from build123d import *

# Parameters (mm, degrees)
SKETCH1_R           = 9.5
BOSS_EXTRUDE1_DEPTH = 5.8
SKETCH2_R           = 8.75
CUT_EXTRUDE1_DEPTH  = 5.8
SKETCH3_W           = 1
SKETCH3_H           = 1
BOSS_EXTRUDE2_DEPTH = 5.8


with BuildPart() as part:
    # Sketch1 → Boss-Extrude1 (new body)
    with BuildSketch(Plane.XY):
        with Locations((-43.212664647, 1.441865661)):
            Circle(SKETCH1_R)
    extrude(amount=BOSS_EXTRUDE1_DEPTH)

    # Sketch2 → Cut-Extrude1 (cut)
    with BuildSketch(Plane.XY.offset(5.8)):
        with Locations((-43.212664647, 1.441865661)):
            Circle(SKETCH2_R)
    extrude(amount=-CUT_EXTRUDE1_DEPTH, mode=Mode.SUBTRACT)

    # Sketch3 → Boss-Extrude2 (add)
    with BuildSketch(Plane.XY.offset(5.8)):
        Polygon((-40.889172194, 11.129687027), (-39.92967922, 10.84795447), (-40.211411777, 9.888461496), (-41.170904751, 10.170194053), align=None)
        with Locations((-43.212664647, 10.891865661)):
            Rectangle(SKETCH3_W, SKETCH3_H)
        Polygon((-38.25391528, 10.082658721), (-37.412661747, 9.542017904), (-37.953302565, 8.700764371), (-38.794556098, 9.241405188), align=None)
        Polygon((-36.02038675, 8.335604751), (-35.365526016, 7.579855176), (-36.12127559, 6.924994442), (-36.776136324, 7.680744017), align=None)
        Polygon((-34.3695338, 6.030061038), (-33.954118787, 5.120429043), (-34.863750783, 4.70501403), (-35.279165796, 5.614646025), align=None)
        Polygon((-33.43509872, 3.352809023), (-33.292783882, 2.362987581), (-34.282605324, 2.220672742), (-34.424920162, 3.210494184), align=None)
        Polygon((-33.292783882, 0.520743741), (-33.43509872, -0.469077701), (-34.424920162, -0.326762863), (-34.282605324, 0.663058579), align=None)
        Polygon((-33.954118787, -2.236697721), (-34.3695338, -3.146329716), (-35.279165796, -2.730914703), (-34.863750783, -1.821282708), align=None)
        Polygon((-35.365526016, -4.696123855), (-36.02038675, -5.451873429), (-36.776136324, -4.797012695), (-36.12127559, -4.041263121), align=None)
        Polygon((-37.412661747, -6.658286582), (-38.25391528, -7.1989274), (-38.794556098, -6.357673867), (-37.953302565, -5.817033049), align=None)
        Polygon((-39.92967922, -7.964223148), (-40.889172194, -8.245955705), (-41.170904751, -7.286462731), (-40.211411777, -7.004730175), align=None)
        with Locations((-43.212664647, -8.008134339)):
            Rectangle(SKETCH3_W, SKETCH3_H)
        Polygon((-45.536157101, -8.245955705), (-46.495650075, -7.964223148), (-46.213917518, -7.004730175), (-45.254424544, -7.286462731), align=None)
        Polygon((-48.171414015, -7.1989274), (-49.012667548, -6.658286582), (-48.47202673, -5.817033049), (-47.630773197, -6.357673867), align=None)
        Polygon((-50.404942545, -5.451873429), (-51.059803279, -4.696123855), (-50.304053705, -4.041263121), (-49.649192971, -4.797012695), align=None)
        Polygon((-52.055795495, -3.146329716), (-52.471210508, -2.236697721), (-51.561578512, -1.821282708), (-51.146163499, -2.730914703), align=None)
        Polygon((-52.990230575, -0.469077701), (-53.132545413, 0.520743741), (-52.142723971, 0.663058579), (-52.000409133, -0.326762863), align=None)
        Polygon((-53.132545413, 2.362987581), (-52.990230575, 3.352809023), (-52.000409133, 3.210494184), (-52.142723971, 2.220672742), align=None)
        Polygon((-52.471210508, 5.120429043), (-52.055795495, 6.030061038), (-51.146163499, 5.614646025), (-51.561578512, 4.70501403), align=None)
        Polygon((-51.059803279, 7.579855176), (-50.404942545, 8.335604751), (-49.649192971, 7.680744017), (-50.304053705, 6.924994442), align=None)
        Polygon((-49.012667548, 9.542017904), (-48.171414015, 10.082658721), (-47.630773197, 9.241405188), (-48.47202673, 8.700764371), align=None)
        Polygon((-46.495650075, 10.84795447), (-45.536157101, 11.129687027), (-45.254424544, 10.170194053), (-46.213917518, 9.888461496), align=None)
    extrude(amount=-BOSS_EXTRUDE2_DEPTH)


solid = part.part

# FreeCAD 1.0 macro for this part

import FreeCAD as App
import Part
import Sketcher
Q = App.Units.Quantity


def add_polygon(sketch, points):
    """Adds a closed chain of lines whose ends are joined by coincident constraints."""
    first, n = sketch.GeometryCount, len(points)
    for a, b in zip(points, points[1:] + points[:1]):
        sketch.addGeometry(Part.LineSegment(App.Vector(*a, 0), App.Vector(*b, 0)), False)
    for i in range(n):
        sketch.addConstraint(Sketcher.Constraint("Coincident", first + i, 2, first + (i + 1) % n, 1))

doc = App.newDocument("Part")
body = doc.addObject("PartDesign::Body", "Body")

# Sketch on XY plane
sketch1 = body.newObject("Sketcher::SketchObject", "Sketch")
sketch1.AttachmentSupport = (doc.getObject("XY_Plane"), [""])
sketch1.MapMode = "FlatFace"
sketch1.addGeometry(Part.Circle(App.Vector(-43.212665, 1.441866, 0), App.Vector(0, 0, 1), 9.5), False)
sketch1.addConstraint([
    Sketcher.Constraint("Diameter", 0, Q("19 mm")),
    Sketcher.Constraint("DistanceX", 0, 3, -1, 1, Q("43.212665 mm")),
    Sketcher.Constraint("DistanceY", -1, 1, 0, 3, Q("1.441866 mm")),
])
pad1 = body.newObject("PartDesign::Pad", "Pad")
pad1.Profile = sketch1
pad1.Length = 5.8

# Sketch on XY plane
sketch2 = body.newObject("Sketcher::SketchObject", "Sketch001")
sketch2.AttachmentSupport = (doc.getObject("XY_Plane"), [""])
sketch2.MapMode = "FlatFace"
sketch2.AttachmentOffset = App.Placement(App.Vector(0, 0, 5.8), App.Rotation())
sketch2.addGeometry(Part.Circle(App.Vector(-43.212665, 1.441866, 0), App.Vector(0, 0, 1), 8.75), False)
sketch2.addConstraint([
    Sketcher.Constraint("Diameter", 0, Q("17.5 mm")),
    Sketcher.Constraint("DistanceX", 0, 3, -1, 1, Q("43.212665 mm")),
    Sketcher.Constraint("DistanceY", -1, 1, 0, 3, Q("1.441866 mm")),
])
pocket1 = body.newObject("PartDesign::Pocket", "Pocket")
pocket1.Profile = sketch2
pocket1.Length = 5.8

# Sketch on XY plane
sketch3 = body.newObject("Sketcher::SketchObject", "Sketch002")
sketch3.AttachmentSupport = (doc.getObject("XY_Plane"), [""])
sketch3.MapMode = "FlatFace"
sketch3.AttachmentOffset = App.Placement(App.Vector(0, 0, 5.8), App.Rotation())
add_polygon(sketch3, [(-39.929679, 10.847954), (-40.889172, 11.129687), (-41.170905, 10.170194), (-40.211412, 9.888461)])  # lines 0-3
add_polygon(sketch3, [(-43.712665, 11.391866), (-43.712665, 10.391866), (-42.712665, 10.391866), (-42.712665, 11.391866)])  # lines 4-7
add_polygon(sketch3, [(-37.412662, 9.542018), (-38.253915, 10.082659), (-38.794556, 9.241405), (-37.953303, 8.700764)])  # lines 8-11
add_polygon(sketch3, [(-35.365526, 7.579855), (-36.020387, 8.335605), (-36.776136, 7.680744), (-36.121276, 6.924994)])  # lines 12-15
add_polygon(sketch3, [(-33.954119, 5.120429), (-34.369534, 6.030061), (-35.279166, 5.614646), (-34.863751, 4.705014)])  # lines 16-19
add_polygon(sketch3, [(-33.292784, 2.362988), (-33.435099, 3.352809), (-34.42492, 3.210494), (-34.282605, 2.220673)])  # lines 20-23
add_polygon(sketch3, [(-33.435099, -0.469078), (-33.292784, 0.520744), (-34.282605, 0.663059), (-34.42492, -0.326763)])  # lines 24-27
add_polygon(sketch3, [(-34.369534, -3.14633), (-33.954119, -2.236698), (-34.863751, -1.821283), (-35.279166, -2.730915)])  # lines 28-31
add_polygon(sketch3, [(-36.020387, -5.451873), (-35.365526, -4.696124), (-36.121276, -4.041263), (-36.776136, -4.797013)])  # lines 32-35
add_polygon(sketch3, [(-38.253915, -7.198927), (-37.412662, -6.658287), (-37.953303, -5.817033), (-38.794556, -6.357674)])  # lines 36-39
add_polygon(sketch3, [(-40.889172, -8.245956), (-39.929679, -7.964223), (-40.211412, -7.00473), (-41.170905, -7.286463)])  # lines 40-43
add_polygon(sketch3, [(-43.712665, -7.508134), (-43.712665, -8.508134), (-42.712665, -8.508134), (-42.712665, -7.508134)])  # lines 44-47
add_polygon(sketch3, [(-46.49565, -7.964223), (-45.536157, -8.245956), (-45.254425, -7.286463), (-46.213918, -7.00473)])  # lines 48-51
add_polygon(sketch3, [(-49.012668, -6.658287), (-48.171414, -7.198927), (-47.630773, -6.357674), (-48.472027, -5.817033)])  # lines 52-55
add_polygon(sketch3, [(-51.059803, -4.696124), (-50.404943, -5.451873), (-49.649193, -4.797013), (-50.304054, -4.041263)])  # lines 56-59
add_polygon(sketch3, [(-52.471211, -2.236698), (-52.055795, -3.14633), (-51.146163, -2.730915), (-51.561579, -1.821283)])  # lines 60-63
add_polygon(sketch3, [(-53.132545, 0.520744), (-52.990231, -0.469078), (-52.000409, -0.326763), (-52.142724, 0.663059)])  # lines 64-67
add_polygon(sketch3, [(-52.990231, 3.352809), (-53.132545, 2.362988), (-52.142724, 2.220673), (-52.000409, 3.210494)])  # lines 68-71
add_polygon(sketch3, [(-52.055795, 6.030061), (-52.471211, 5.120429), (-51.561579, 4.705014), (-51.146163, 5.614646)])  # lines 72-75
add_polygon(sketch3, [(-50.404943, 8.335605), (-51.059803, 7.579855), (-50.304054, 6.924994), (-49.649193, 7.680744)])  # lines 76-79
add_polygon(sketch3, [(-48.171414, 10.082659), (-49.012668, 9.542018), (-48.472027, 8.700764), (-47.630773, 9.241405)])  # lines 80-83
add_polygon(sketch3, [(-45.536157, 11.129687), (-46.49565, 10.847954), (-46.213918, 9.888461), (-45.254425, 10.170194)])  # lines 84-87
sketch3.addConstraint([
    Sketcher.Constraint("Vertical", 4),
    Sketcher.Constraint("Horizontal", 5),
    Sketcher.Constraint("Vertical", 6),
    Sketcher.Constraint("Horizontal", 7),
    Sketcher.Constraint("Vertical", 44),
    Sketcher.Constraint("Horizontal", 45),
    Sketcher.Constraint("Vertical", 46),
    Sketcher.Constraint("Horizontal", 47),
    Sketcher.Constraint("Perpendicular", 0, 1),
    Sketcher.Constraint("Perpendicular", 1, 2),
    Sketcher.Constraint("Perpendicular", 2, 3),
    Sketcher.Constraint("Perpendicular", 8, 9),
    Sketcher.Constraint("Perpendicular", 9, 10),
    Sketcher.Constraint("Perpendicular", 10, 11),
    Sketcher.Constraint("Perpendicular", 12, 13),
    Sketcher.Constraint("Perpendicular", 13, 14),
    Sketcher.Constraint("Perpendicular", 14, 15),
    Sketcher.Constraint("Perpendicular", 16, 17),
    Sketcher.Constraint("Perpendicular", 17, 18),
    Sketcher.Constraint("Perpendicular", 18, 19),
    Sketcher.Constraint("Perpendicular", 20, 21),
    Sketcher.Constraint("Perpendicular", 21, 22),
    Sketcher.Constraint("Perpendicular", 22, 23),
    Sketcher.Constraint("Perpendicular", 24, 25),
    Sketcher.Constraint("Perpendicular", 25, 26),
    Sketcher.Constraint("Perpendicular", 26, 27),
    Sketcher.Constraint("Perpendicular", 28, 29),
    Sketcher.Constraint("Perpendicular", 29, 30),
    Sketcher.Constraint("Perpendicular", 30, 31),
    Sketcher.Constraint("Perpendicular", 32, 33),
    Sketcher.Constraint("Perpendicular", 33, 34),
    Sketcher.Constraint("Perpendicular", 34, 35),
    Sketcher.Constraint("Perpendicular", 36, 37),
    Sketcher.Constraint("Perpendicular", 37, 38),
    Sketcher.Constraint("Perpendicular", 38, 39),
    Sketcher.Constraint("Perpendicular", 40, 41),
    Sketcher.Constraint("Perpendicular", 41, 42),
    Sketcher.Constraint("Perpendicular", 42, 43),
    Sketcher.Constraint("Perpendicular", 3, 48),
    Sketcher.Constraint("Perpendicular", 48, 49),
    Sketcher.Constraint("Perpendicular", 49, 50),
    Sketcher.Constraint("Perpendicular", 50, 51),
    Sketcher.Constraint("Perpendicular", 11, 52),
    Sketcher.Constraint("Perpendicular", 52, 53),
    Sketcher.Constraint("Perpendicular", 53, 54),
    Sketcher.Constraint("Perpendicular", 54, 55),
    Sketcher.Constraint("Perpendicular", 15, 56),
    Sketcher.Constraint("Perpendicular", 56, 57),
    Sketcher.Constraint("Perpendicular", 57, 58),
    Sketcher.Constraint("Perpendicular", 58, 59),
    Sketcher.Constraint("Perpendicular", 19, 60),
    Sketcher.Constraint("Perpendicular", 60, 61),
    Sketcher.Constraint("Perpendicular", 61, 62),
    Sketcher.Constraint("Perpendicular", 62, 63),
    Sketcher.Constraint("Perpendicular", 23, 64),
    Sketcher.Constraint("Perpendicular", 64, 65),
    Sketcher.Constraint("Perpendicular", 65, 66),
    Sketcher.Constraint("Perpendicular", 66, 67),
    Sketcher.Constraint("Perpendicular", 27, 68),
    Sketcher.Constraint("Perpendicular", 68, 69),
    Sketcher.Constraint("Perpendicular", 69, 70),
    Sketcher.Constraint("Perpendicular", 70, 71),
    Sketcher.Constraint("Perpendicular", 31, 72),
    Sketcher.Constraint("Perpendicular", 72, 73),
    Sketcher.Constraint("Perpendicular", 73, 74),
    Sketcher.Constraint("Perpendicular", 74, 75),
    Sketcher.Constraint("Perpendicular", 35, 76),
    Sketcher.Constraint("Perpendicular", 76, 77),
    Sketcher.Constraint("Perpendicular", 77, 78),
    Sketcher.Constraint("Perpendicular", 78, 79),
    Sketcher.Constraint("Perpendicular", 39, 80),
    Sketcher.Constraint("Perpendicular", 80, 81),
    Sketcher.Constraint("Perpendicular", 81, 82),
    Sketcher.Constraint("Perpendicular", 82, 83),
    Sketcher.Constraint("Perpendicular", 43, 84),
    Sketcher.Constraint("Perpendicular", 84, 85),
    Sketcher.Constraint("Perpendicular", 85, 86),
    Sketcher.Constraint("Perpendicular", 86, 87),
    Sketcher.Constraint("Horizontal", 43, 2, 48, 2),
    Sketcher.Constraint("Horizontal", 42, 2, 49, 2),
    Sketcher.Constraint("Horizontal", 41, 2, 50, 2),
    Sketcher.Constraint("Horizontal", 39, 2, 52, 2),
    Sketcher.Constraint("Horizontal", 38, 2, 53, 2),
    Sketcher.Constraint("Horizontal", 37, 2, 54, 2),
    Sketcher.Constraint("Horizontal", 35, 2, 56, 2),
    Sketcher.Constraint("Horizontal", 34, 2, 57, 2),
    Sketcher.Constraint("Horizontal", 33, 2, 58, 2),
    Sketcher.Constraint("Horizontal", 31, 2, 60, 2),
    Sketcher.Constraint("Horizontal", 30, 2, 61, 2),
    Sketcher.Constraint("Horizontal", 29, 2, 62, 2),
    Sketcher.Constraint("Horizontal", 27, 2, 64, 2),
    Sketcher.Constraint("Horizontal", 26, 2, 65, 2),
    Sketcher.Constraint("Horizontal", 25, 2, 66, 2),
    Sketcher.Constraint("Horizontal", 23, 2, 68, 2),
    Sketcher.Constraint("Horizontal", 22, 2, 69, 2),
    Sketcher.Constraint("Horizontal", 21, 2, 70, 2),
    Sketcher.Constraint("Horizontal", 19, 2, 72, 2),
    Sketcher.Constraint("Horizontal", 18, 2, 73, 2),
    Sketcher.Constraint("Horizontal", 17, 2, 74, 2),
    Sketcher.Constraint("Horizontal", 15, 2, 76, 2),
    Sketcher.Constraint("Horizontal", 14, 2, 77, 2),
    Sketcher.Constraint("Horizontal", 13, 2, 78, 2),
    Sketcher.Constraint("Horizontal", 11, 2, 80, 2),
    Sketcher.Constraint("Horizontal", 10, 2, 81, 2),
    Sketcher.Constraint("Horizontal", 9, 2, 82, 2),
    Sketcher.Constraint("Horizontal", 3, 2, 84, 2),
    Sketcher.Constraint("Horizontal", 2, 2, 85, 2),
    Sketcher.Constraint("Horizontal", 1, 2, 86, 2),
    Sketcher.Constraint("Vertical", 23, 2, 24, 2),
    Sketcher.Constraint("Vertical", 22, 2, 25, 2),
    Sketcher.Constraint("Vertical", 21, 2, 26, 2),
    Sketcher.Constraint("Vertical", 19, 2, 28, 2),
    Sketcher.Constraint("Vertical", 18, 2, 29, 2),
    Sketcher.Constraint("Vertical", 17, 2, 30, 2),
    Sketcher.Constraint("Vertical", 15, 2, 32, 2),
    Sketcher.Constraint("Vertical", 14, 2, 33, 2),
    Sketcher.Constraint("Vertical", 13, 2, 34, 2),
    Sketcher.Constraint("Vertical", 11, 2, 36, 2),
    Sketcher.Constraint("Vertical", 10, 2, 37, 2),
    Sketcher.Constraint("Vertical", 9, 2, 38, 2),
    Sketcher.Constraint("Vertical", 3, 2, 40, 2),
    Sketcher.Constraint("Vertical", 2, 2, 41, 2),
    Sketcher.Constraint("Vertical", 1, 2, 42, 2),
    Sketcher.Constraint("Vertical", 7, 2, 44, 2),
    Sketcher.Constraint("Vertical", 6, 2, 45, 2),
    Sketcher.Constraint("Vertical", 67, 2, 68, 2),
    Sketcher.Constraint("Vertical", 66, 2, 69, 2),
    Sketcher.Constraint("Vertical", 63, 2, 72, 2),
    Sketcher.Constraint("Vertical", 62, 2, 73, 2),
    Sketcher.Constraint("Vertical", 59, 2, 76, 2),
    Sketcher.Constraint("Vertical", 58, 2, 77, 2),
    Sketcher.Constraint("Vertical", 55, 2, 80, 2),
    Sketcher.Constraint("Vertical", 54, 2, 81, 2),
    Sketcher.Constraint("Vertical", 51, 2, 84, 2),
    Sketcher.Constraint("Vertical", 50, 2, 85, 2),
    Sketcher.Constraint("Equal", 47, 4),
    Sketcher.Constraint("Equal", 6, 44),
    Sketcher.Constraint("Equal", 0, 1),
    Sketcher.Constraint("Equal", 3, 8),
    Sketcher.Constraint("Equal", 8, 9),
    Sketcher.Constraint("Equal", 11, 12),
    Sketcher.Constraint("Equal", 12, 13),
    Sketcher.Constraint("Equal", 15, 16),
    Sketcher.Constraint("Equal", 16, 17),
    Sketcher.Constraint("Equal", 19, 20),
    Sketcher.Constraint("Equal", 20, 21),
    Sketcher.Constraint("DistanceX", 5, 1, 5, 2, Q("1 mm")),
    Sketcher.Constraint("Distance", 0, Q("1 mm")),
    Sketcher.Constraint("DistanceX", 20, 2, -1, 1, Q("33.435099 mm")),
    Sketcher.Constraint("DistanceX", 2, 2, -1, 1, Q("40.211412 mm")),
    Sketcher.Constraint("DistanceY", -1, 1, 2, 2, Q("9.888461 mm")),
    Sketcher.Constraint("DistanceX", 3, 2, -1, 1, Q("39.929679 mm")),
    Sketcher.Constraint("DistanceY", -1, 1, 8, 2, Q("10.082659 mm")),
    Sketcher.Constraint("DistanceX", 11, 2, -1, 1, Q("37.412662 mm")),
    Sketcher.Constraint("DistanceY", -1, 1, 16, 2, Q("6.030061 mm")),
    Sketcher.Constraint("DistanceX", 18, 2, -1, 1, Q("34.863751 mm")),
    Sketcher.Constraint("DistanceX", 19, 2, -1, 1, Q("33.954119 mm")),
    Sketcher.Constraint("DistanceY", -1, 1, 20, 2, Q("3.352809 mm")),
    Sketcher.Constraint("DistanceX", 21, 2, -1, 1, Q("34.42492 mm")),
    Sketcher.Constraint("DistanceY", -1, 1, 25, 2, Q("0.663059 mm")),
    Sketcher.Constraint("DistanceY", 31, 2, -1, 1, Q("3.14633 mm")),
    Sketcher.Constraint("DistanceY", 41, 2, -1, 1, Q("7.00473 mm")),
    Sketcher.Constraint("DistanceX", 51, 2, -1, 1, Q("46.49565 mm")),
    Sketcher.Constraint("DistanceX", 62, 2, -1, 1, Q("51.561579 mm")),
    Sketcher.Constraint("DistanceX", 64, 2, -1, 1, Q("52.990231 mm")),
    Sketcher.Constraint("DistanceX", 4, 2, -1, 1, Q("43.712665 mm")),
    Sketcher.Constraint("DistanceY", -1, 1, 4, 2, Q("10.391866 mm")),
    Sketcher.Constraint("DistanceX", 8, 2, -1, 1, Q("38.253915 mm")),
    Sketcher.Constraint("DistanceX", 12, 2, -1, 1, Q("36.020387 mm")),
    Sketcher.Constraint("DistanceY", -1, 1, 12, 2, Q("8.335605 mm")),
    Sketcher.Constraint("DistanceX", 13, 2, -1, 1, Q("36.776136 mm")),
    Sketcher.Constraint("DistanceY", 32, 2, -1, 1, Q("4.696124 mm")),
    Sketcher.Constraint("DistanceY", 36, 2, -1, 1, Q("6.658287 mm")),
    Sketcher.Constraint("DistanceY", 44, 2, -1, 1, Q("8.508134 mm")),
    Sketcher.Constraint("DistanceX", 52, 2, -1, 1, Q("48.171414 mm")),
    Sketcher.Constraint("DistanceX", 56, 2, -1, 1, Q("50.404943 mm")),
])
pad2 = body.newObject("PartDesign::Pad", "Pad001")
pad2.Profile = sketch3
pad2.Length = 5.8
pad2.Reversed = True

doc.recompute()
